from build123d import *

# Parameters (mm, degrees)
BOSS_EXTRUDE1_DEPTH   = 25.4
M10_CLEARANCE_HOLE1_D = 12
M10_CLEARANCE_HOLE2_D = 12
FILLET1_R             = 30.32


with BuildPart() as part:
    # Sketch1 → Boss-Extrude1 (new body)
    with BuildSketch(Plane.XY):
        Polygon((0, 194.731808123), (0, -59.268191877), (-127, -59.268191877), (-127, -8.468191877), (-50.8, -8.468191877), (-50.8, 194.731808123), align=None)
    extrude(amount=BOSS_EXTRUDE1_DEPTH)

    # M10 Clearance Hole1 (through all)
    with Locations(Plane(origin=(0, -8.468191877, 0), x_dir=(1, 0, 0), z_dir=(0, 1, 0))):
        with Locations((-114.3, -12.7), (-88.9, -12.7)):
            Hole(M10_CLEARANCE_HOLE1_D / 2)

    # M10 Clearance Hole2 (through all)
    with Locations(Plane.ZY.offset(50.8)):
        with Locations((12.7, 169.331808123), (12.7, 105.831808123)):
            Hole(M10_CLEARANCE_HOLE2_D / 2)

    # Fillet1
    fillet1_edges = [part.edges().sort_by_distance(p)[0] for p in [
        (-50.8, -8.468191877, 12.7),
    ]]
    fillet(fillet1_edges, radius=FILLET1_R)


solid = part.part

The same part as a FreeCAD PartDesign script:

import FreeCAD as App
import Part
import Sketcher
from FreeCAD import Vector
Q = App.Units.Quantity


def edges_at(feature, points):
    """Names of the edges that pass closest to the given points."""
    edges = feature.Shape.Edges
    near = lambda p: min(range(len(edges)), key=lambda i: edges[i].distToShape(Part.Vertex(*p))[0])
    return sorted({f"Edge{near(p) + 1}" for p in points})

doc = App.newDocument("Part")
body = doc.addObject("PartDesign::Body", "Body")

sketch1 = doc.addObject("Sketcher::SketchObject", "Sketch")
body.addObject(sketch1)
sketch1.AttachmentSupport = (doc.XY_Plane, [""])
sketch1.MapMode = "FlatFace"
sketch1.addGeometry([
    Part.LineSegment(Vector(0, -59.268192, 0), Vector(0, 194.731808, 0)),
    Part.LineSegment(Vector(0, 194.731808, 0), Vector(-50.8, 194.731808, 0)),
    Part.LineSegment(Vector(-50.8, 194.731808, 0), Vector(-50.8, -8.468192, 0)),
    Part.LineSegment(Vector(-50.8, -8.468192, 0), Vector(-127, -8.468192, 0)),
    Part.LineSegment(Vector(-127, -8.468192, 0), Vector(-127, -59.268192, 0)),
    Part.LineSegment(Vector(-127, -59.268192, 0), Vector(0, -59.268192, 0)),
], False)
sketch1.addConstraint([
    Sketcher.Constraint("Coincident", 0, 2, 1, 1),
    Sketcher.Constraint("Coincident", 1, 2, 2, 1),
    Sketcher.Constraint("Coincident", 2, 2, 3, 1),
    Sketcher.Constraint("Coincident", 3, 2, 4, 1),
    Sketcher.Constraint("Coincident", 4, 2, 5, 1),
    Sketcher.Constraint("Coincident", 5, 2, 0, 1),
    Sketcher.Constraint("Vertical", 0),
    Sketcher.Constraint("Horizontal", 1),
    Sketcher.Constraint("Vertical", 2),
    Sketcher.Constraint("Horizontal", 3),
    Sketcher.Constraint("Vertical", 4),
    Sketcher.Constraint("Horizontal", 5),
    Sketcher.Constraint("PointOnObject", 0, 2, -2),
    Sketcher.Constraint("Equal", 1, 4),
    Sketcher.Constraint("DistanceX", 1, 2, 1, 1, Q("2 in")),
    Sketcher.Constraint("DistanceX", 3, 2, 3, 1, Q("3 in")),
    Sketcher.Constraint("DistanceY", 0, 1, 0, 2, Q("10 in")),
    Sketcher.Constraint("DistanceY", -1, 1, 0, 2, 194.731808),
])
pad1 = doc.addObject("PartDesign::Pad", "Pad")
body.addObject(pad1)
pad1.Profile = sketch1
pad1.Length = Q("1 in")

sketch2 = doc.addObject("Sketcher::SketchObject", "Sketch001")
body.addObject(sketch2)
sketch2.AttachmentSupport = (doc.XZ_Plane, [""])
sketch2.MapMode = "FlatFace"
sketch2.AttachmentOffset = App.Placement(Vector(0, 0, 8.468192), App.Rotation())
sketch2.addGeometry([
    Part.Circle(Vector(-114.3, 12.7, 0), Vector(0, 0, 1), 6),
    Part.Circle(Vector(-88.9, 12.7, 0), Vector(0, 0, 1), 6),
], False)
sketch2.addConstraint([
    Sketcher.Constraint("Equal", 0, 1),
    Sketcher.Constraint("Horizontal", 0, 3, 1, 3),
    Sketcher.Constraint("DistanceX", 0, 3, 1, 3, Q("1 in")),
    Sketcher.Constraint("DistanceX", 0, 3, -1, 1, Q("4.5 in")),
    Sketcher.Constraint("DistanceY", -1, 1, 0, 3, Q("0.5 in")),
    Sketcher.Constraint("Diameter", 0, 12.0),
])
doc.recompute()
hole = doc.addObject("PartDesign::Hole", "Hole")
body.addObject(hole)
hole.Profile = sketch2
hole.ThreadType = "None"
hole.Diameter = 12
hole.DepthType = "ThroughAll"
hole.Reversed = True

sketch3 = doc.addObject("Sketcher::SketchObject", "Sketch002")
body.addObject(sketch3)
sketch3.AttachmentSupport = (doc.YZ_Plane, [""])
sketch3.MapMode = "FlatFace"
sketch3.AttachmentOffset = App.Placement(Vector(0, 0, -2 * 25.4), App.Rotation())
sketch3.addGeometry([
    Part.Circle(Vector(169.331808, 12.7, 0), Vector(0, 0, 1), 6),
    Part.Circle(Vector(105.831808, 12.7, 0), Vector(0, 0, 1), 6),
], False)
sketch3.addConstraint([
    Sketcher.Constraint("Equal", 0, 1),
    Sketcher.Constraint("Horizontal", 0, 3, 1, 3),
    Sketcher.Constraint("DistanceY", -1, 1, 0, 3, Q("0.5 in")),
    Sketcher.Constraint("DistanceX", 1, 3, 0, 3, Q("2.5 in")),
    Sketcher.Constraint("Diameter", 0, 12.0),
    Sketcher.Constraint("DistanceX", -1, 1, 0, 3, 169.331808),
])
doc.recompute()
hole2 = doc.addObject("PartDesign::Hole", "Hole001")
body.addObject(hole2)
hole2.Profile = sketch3
hole2.ThreadType = "None"
hole2.Diameter = 12
hole2.DepthType = "ThroughAll"
hole2.Reversed = True
doc.recompute()

fillet = doc.addObject("PartDesign::Fillet", "Fillet")
body.addObject(fillet)
fillet.Base = (hole2, edges_at(hole2, [(-50.8, -8.468, 12.7)]))
fillet.Radius = 30.32

doc.recompute()
